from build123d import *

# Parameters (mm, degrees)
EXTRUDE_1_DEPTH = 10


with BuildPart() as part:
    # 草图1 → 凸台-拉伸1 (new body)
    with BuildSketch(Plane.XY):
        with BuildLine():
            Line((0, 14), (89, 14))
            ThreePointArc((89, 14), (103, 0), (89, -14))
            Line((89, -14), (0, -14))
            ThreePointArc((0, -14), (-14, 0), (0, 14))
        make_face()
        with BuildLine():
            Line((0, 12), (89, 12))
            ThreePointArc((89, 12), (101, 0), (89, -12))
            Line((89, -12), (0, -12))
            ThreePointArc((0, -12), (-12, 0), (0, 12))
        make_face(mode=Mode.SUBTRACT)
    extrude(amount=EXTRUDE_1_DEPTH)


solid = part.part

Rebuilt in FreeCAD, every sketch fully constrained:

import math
import FreeCAD as App
import Part
import Sketcher

V = App.Vector
Q = App.Units.Quantity

doc = App.newDocument("Part")
params = doc.addObject("Spreadsheet::Sheet", "Params")
for row, (alias, value) in enumerate([
    ("sketch1_radius", "14 mm"),
    ("sketch1_radius2", "12 mm"),
    ("sketch1_width", "89 mm"),
    ("pad1_length", "10 mm"),
], start=1):
    params.set(f"A{row}", alias)
    params.set(f"B{row}", "=" + value)
    params.setAlias(f"B{row}", alias)

body = doc.addObject("PartDesign::Body", "Body")

sketch1 = body.newObject("Sketcher::SketchObject", "Sketch")
sketch1.AttachmentSupport = (doc.getObject("XY_Plane"), [""])
sketch1.MapMode = "FlatFace"
sketch1.addGeometry([
    Part.LineSegment(V(89, 14, 0), V(0, 14, 0)),
    Part.ArcOfCircle(Part.Circle(V(0, 0, 0), V(0, 0, 1), 14), math.radians(90), math.radians(270)),
    Part.LineSegment(V(0, -14, 0), V(89, -14, 0)),
    Part.ArcOfCircle(Part.Circle(V(89, 0, 0), V(0, 0, 1), 14), math.radians(-90), math.radians(90)),
    Part.LineSegment(V(0, 12, 0), V(89, 12, 0)),
    Part.ArcOfCircle(Part.Circle(V(89, 0, 0), V(0, 0, 1), 12), math.radians(-90), math.radians(90)),
    Part.LineSegment(V(89, -12, 0), V(0, -12, 0)),
    Part.ArcOfCircle(Part.Circle(V(0, 0, 0), V(0, 0, 1), 12), math.radians(90), math.radians(270)),
], False)
sketch1.addConstraint([
    Sketcher.Constraint("Tangent", 0, 2, 1, 1),
    Sketcher.Constraint("Tangent", 1, 2, 2, 1),
    Sketcher.Constraint("Tangent", 2, 2, 3, 1),
    Sketcher.Constraint("Tangent", 3, 2, 0, 1),
    Sketcher.Constraint("Tangent", 4, 2, 5, 2),
    Sketcher.Constraint("Tangent", 5, 1, 6, 1),
    Sketcher.Constraint("Tangent", 6, 2, 7, 2),
    Sketcher.Constraint("Tangent", 7, 1, 4, 1),
    Sketcher.Constraint("Horizontal", 0),
    Sketcher.Constraint("Horizontal", 2),
    Sketcher.Constraint("Horizontal", 4),
    Sketcher.Constraint("Horizontal", 6),
    Sketcher.Constraint("Coincident", 1, 3, -1, 1),
    Sketcher.Constraint("Coincident", 7, 3, -1, 1),
    Sketcher.Constraint("Vertical", 5, 3, 2, 2),
    Sketcher.Constraint("Radius", 1, Q("14 mm")),
    Sketcher.Constraint("Radius", 5, Q("12 mm")),
    Sketcher.Constraint("DistanceX", 0, 2, 0, 1, Q("89 mm")),
])
sketch1.setExpression("Constraints[15]", "Params.sketch1_radius")
sketch1.setExpression("Constraints[16]", "Params.sketch1_radius2")
sketch1.setExpression("Constraints[17]", "Params.sketch1_width")
pad1 = body.newObject("PartDesign::Pad", "Pad")
pad1.Profile = sketch1
pad1.setExpression("Length", "Params.pad1_length")

doc.recompute()
